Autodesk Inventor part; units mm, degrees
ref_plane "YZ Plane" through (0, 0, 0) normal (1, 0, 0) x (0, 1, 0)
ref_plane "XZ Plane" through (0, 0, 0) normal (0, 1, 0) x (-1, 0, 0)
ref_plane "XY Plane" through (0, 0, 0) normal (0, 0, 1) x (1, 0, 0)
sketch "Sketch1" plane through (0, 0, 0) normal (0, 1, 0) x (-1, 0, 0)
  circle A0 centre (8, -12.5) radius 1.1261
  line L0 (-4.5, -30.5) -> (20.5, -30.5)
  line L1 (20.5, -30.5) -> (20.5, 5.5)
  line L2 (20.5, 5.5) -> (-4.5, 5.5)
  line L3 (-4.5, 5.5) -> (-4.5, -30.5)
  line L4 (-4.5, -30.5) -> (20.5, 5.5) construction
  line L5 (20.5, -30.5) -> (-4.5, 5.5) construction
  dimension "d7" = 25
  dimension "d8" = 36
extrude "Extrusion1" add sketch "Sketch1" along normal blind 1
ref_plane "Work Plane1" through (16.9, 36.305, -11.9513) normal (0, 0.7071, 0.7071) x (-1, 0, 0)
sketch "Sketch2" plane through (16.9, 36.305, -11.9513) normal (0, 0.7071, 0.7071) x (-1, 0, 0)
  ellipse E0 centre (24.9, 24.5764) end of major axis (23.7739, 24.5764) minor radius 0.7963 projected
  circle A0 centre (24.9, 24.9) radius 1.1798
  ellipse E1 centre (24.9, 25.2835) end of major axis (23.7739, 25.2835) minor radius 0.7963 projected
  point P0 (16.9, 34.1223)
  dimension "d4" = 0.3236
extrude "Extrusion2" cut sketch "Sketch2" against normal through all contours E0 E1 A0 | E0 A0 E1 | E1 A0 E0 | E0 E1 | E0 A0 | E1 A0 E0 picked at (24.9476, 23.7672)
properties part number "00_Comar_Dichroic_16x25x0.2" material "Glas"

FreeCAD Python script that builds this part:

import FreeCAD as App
import Part
import Sketcher

V = App.Vector


def add_polygon(sketch, points):
    """Adds a closed chain of lines whose ends are joined by coincident constraints."""
    first, n = sketch.GeometryCount, len(points)
    for a, b in zip(points, points[1:] + points[:1]):
        sketch.addGeometry(Part.LineSegment(App.Vector(*a, 0), App.Vector(*b, 0)), False)
    for i in range(n):
        sketch.addConstraint(Sketcher.Constraint("Coincident", first + i, 2, first + (i + 1) % n, 1))

doc = App.newDocument("Part")
body = doc.addObject("PartDesign::Body", "Body")

# Sketch on XZ plane
sketch1 = doc.addObject("Sketcher::SketchObject", "Sketch")
body.addObject(sketch1)
sketch1.AttachmentSupport = (doc.XZ_Plane, [""])
sketch1.MapMode = "FlatFace"
add_polygon(sketch1, [(4.5, 5.5), (4.5, -30.5), (-20.5, -30.5), (-20.5, 5.5)])  # lines 0-3
sketch1.addGeometry(Part.Circle(V(-8, -12.5, 0), V(0, 0, 1), 1.1261), False)  # 4
sketch1.addConstraint(Sketcher.Constraint("Vertical", 0))
sketch1.addConstraint(Sketcher.Constraint("Horizontal", 1))
sketch1.addConstraint(Sketcher.Constraint("Vertical", 2))
sketch1.addConstraint(Sketcher.Constraint("Horizontal", 3))
sketch1.addConstraint(Sketcher.Constraint("DistanceX", 1, 2, 1, 1, 25.0))
sketch1.addConstraint(Sketcher.Constraint("DistanceY", 0, 2, 0, 1, 36.0))
sketch1.addConstraint(Sketcher.Constraint("DistanceX", 4, 3, -1, 1, 8.0))
sketch1.addConstraint(Sketcher.Constraint("DistanceY", 0, 2, 4, 3, 18.0))
sketch1.addConstraint(Sketcher.Constraint("Diameter", 4, 2.2522))
sketch1.addConstraint(Sketcher.Constraint("DistanceY", 4, 3, -1, 1, 12.5))
sketch1.addConstraint(Sketcher.Constraint("DistanceX", -1, 1, 0, 2, 4.5))
pad1 = doc.addObject("PartDesign::Pad", "Pad")
body.addObject(pad1)
pad1.Profile = sketch1
pad1.Length = 1
pad1.Reversed = True

# Sketch on an angled plane
sketch2 = doc.addObject("Sketcher::SketchObject", "Sketch001")
body.addObject(sketch2)
sketch2.Placement = App.Placement(V(16.9, 36.305, -11.9513), App.Rotation(V(-1, 0, 0), V(0, -0.707106781, 0.707106781), V(0, 0.707106781, 0.707106781), "ZXY"))
sketch2.addGeometry(Part.Circle(V(24.9, 24.9, 0), V(0, 0, 1), 1.1798), False)
sketch2.addConstraint(Sketcher.Constraint("Diameter", 0, 2.3596))
sketch2.addConstraint(Sketcher.Constraint("DistanceX", -1, 1, 0, 3, 24.9))
sketch2.addConstraint(Sketcher.Constraint("DistanceY", -1, 1, 0, 3, 24.9))
pocket1 = doc.addObject("PartDesign::Pocket", "Pocket")
body.addObject(pocket1)
pocket1.Profile = sketch2
pocket1.Type = "ThroughAll"

doc.recompute()
